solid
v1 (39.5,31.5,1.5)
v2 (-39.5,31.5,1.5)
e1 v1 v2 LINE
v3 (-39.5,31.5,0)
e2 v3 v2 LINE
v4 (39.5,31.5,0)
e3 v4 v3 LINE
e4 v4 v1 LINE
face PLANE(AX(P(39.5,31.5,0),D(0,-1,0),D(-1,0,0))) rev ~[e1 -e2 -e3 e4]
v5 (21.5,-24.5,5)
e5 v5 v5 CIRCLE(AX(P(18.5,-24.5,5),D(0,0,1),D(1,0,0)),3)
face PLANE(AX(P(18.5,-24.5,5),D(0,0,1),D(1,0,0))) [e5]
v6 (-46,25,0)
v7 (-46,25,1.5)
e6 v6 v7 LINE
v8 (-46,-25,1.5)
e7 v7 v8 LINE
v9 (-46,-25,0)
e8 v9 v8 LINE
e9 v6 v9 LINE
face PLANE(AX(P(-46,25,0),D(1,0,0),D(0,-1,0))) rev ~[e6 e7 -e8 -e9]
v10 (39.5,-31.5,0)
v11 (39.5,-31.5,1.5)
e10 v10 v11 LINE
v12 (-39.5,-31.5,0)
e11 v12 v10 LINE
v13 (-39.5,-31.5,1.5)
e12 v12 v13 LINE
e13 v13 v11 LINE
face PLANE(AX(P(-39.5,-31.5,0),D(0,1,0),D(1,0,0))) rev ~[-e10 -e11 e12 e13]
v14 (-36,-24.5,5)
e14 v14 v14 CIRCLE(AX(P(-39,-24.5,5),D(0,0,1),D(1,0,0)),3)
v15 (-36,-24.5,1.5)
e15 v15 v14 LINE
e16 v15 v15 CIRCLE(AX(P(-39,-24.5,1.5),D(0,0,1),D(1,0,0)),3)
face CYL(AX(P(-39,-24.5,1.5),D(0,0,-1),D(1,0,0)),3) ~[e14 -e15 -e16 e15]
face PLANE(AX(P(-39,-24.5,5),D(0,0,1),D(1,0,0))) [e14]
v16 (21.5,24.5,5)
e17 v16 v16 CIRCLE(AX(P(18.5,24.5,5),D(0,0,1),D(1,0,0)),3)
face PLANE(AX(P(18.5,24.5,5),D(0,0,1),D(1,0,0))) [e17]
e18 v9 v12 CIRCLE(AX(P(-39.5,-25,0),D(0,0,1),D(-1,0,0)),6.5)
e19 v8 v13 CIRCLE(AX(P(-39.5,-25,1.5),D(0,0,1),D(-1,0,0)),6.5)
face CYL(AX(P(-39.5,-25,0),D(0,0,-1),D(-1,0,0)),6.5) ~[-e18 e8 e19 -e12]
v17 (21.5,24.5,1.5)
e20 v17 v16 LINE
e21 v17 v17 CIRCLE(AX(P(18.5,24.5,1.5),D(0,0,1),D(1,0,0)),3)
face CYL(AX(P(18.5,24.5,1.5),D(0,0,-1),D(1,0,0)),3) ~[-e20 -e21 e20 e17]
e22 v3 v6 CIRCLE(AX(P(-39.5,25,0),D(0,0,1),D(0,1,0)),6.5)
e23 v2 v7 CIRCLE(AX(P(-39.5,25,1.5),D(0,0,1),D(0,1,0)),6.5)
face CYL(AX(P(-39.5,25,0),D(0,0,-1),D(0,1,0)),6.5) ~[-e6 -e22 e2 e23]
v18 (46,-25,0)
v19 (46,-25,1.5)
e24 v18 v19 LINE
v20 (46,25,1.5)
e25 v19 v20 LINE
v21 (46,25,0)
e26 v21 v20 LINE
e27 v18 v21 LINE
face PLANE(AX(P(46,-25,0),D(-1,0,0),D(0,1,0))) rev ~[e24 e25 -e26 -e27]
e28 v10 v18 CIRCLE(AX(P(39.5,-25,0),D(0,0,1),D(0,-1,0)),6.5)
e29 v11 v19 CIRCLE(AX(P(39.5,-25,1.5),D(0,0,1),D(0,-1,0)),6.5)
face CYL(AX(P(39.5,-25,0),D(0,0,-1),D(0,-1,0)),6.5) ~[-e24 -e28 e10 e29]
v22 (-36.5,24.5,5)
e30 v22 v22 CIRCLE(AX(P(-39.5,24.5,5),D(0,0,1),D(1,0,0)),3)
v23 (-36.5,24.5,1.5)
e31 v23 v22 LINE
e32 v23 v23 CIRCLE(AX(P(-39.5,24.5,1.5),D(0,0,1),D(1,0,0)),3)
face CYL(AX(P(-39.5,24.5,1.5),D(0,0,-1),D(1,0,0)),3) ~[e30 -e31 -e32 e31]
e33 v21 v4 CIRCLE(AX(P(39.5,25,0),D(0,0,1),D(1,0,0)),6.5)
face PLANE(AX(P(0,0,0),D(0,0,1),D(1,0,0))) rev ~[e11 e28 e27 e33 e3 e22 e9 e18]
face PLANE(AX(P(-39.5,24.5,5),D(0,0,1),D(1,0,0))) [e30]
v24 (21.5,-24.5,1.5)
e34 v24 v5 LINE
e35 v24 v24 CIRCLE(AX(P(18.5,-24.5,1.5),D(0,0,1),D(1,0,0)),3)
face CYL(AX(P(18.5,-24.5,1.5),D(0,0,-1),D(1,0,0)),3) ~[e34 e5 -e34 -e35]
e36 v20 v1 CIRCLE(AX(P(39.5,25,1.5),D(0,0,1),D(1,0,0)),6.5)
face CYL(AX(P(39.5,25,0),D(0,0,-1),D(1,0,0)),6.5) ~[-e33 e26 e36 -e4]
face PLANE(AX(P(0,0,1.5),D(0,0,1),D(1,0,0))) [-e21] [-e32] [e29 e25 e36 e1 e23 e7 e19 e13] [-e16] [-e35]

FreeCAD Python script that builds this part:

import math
import FreeCAD as App
import Part
import Sketcher

doc = App.newDocument("Part")
body = doc.addObject("PartDesign::Body", "Body")

# Sketch on XY plane
sketch1 = body.newObject("Sketcher::SketchObject", "Sketch")
sketch1.AttachmentSupport = (doc.getObject("XY_Plane"), [""])
sketch1.MapMode = "FlatFace"
sketch1.addGeometry([
    Part.LineSegment(App.Vector(40, 32, 0), App.Vector(-40, 32, 0)),  # 0
    Part.ArcOfCircle(Part.Circle(App.Vector(-40, 25, 0), App.Vector(0, 0, 1), 6), math.radians(90), math.radians(180)),  # 1
    Part.LineSegment(App.Vector(-46, 25, 0), App.Vector(-46, -25, 0)),  # 2
    Part.ArcOfCircle(Part.Circle(App.Vector(-40, -25, 0), App.Vector(0, 0, 1), 6), math.radians(180), math.radians(270)),  # 3
    Part.LineSegment(App.Vector(-40, -32, 0), App.Vector(40, -32, 0)),  # 4
    Part.ArcOfCircle(Part.Circle(App.Vector(40, -25, 0), App.Vector(0, 0, 1), 6), math.radians(-90), math.radians(0)),  # 5
    Part.LineSegment(App.Vector(46, -25, 0), App.Vector(46, 25, 0)),  # 6
    Part.ArcOfCircle(Part.Circle(App.Vector(40, 25, 0), App.Vector(0, 0, 1), 6), math.radians(0), math.radians(90)),  # 7
], False)
sketch1.addConstraint([
    Sketcher.Constraint("Tangent", 0, 2, 1, 1),
    Sketcher.Constraint("Tangent", 1, 2, 2, 1),
    Sketcher.Constraint("Tangent", 2, 2, 3, 1),
    Sketcher.Constraint("Tangent", 3, 2, 4, 1),
    Sketcher.Constraint("Tangent", 4, 2, 5, 1),
    Sketcher.Constraint("Tangent", 5, 2, 6, 1),
    Sketcher.Constraint("Tangent", 6, 2, 7, 1),
    Sketcher.Constraint("Tangent", 7, 2, 0, 1),
    Sketcher.Constraint("Horizontal", 0),
    Sketcher.Constraint("Vertical", 2),
    Sketcher.Constraint("Horizontal", 4),
    Sketcher.Constraint("Vertical", 6),
    Sketcher.Constraint("Equal", 1, 3),
    Sketcher.Constraint("Equal", 3, 5),
    Sketcher.Constraint("Equal", 5, 7),
    Sketcher.Constraint("Symmetric", 1, 3, 5, 3, -1, 1),
    Sketcher.Constraint("Radius", 1, 6.5),
    Sketcher.Constraint("DistanceX", 0, 2, 0, 1, 79.0),
    Sketcher.Constraint("DistanceY", 2, 2, 2, 1, 50.0),
])
pad1 = body.newObject("PartDesign::Pad", "Pad")
pad1.Profile = sketch1
pad1.Length = 1.5

# Sketch on XY plane
sketch2 = body.newObject("Sketcher::SketchObject", "Sketch001")
sketch2.AttachmentSupport = (doc.getObject("XY_Plane"), [""])
sketch2.MapMode = "FlatFace"
sketch2.AttachmentOffset = App.Placement(App.Vector(0, 0, 1.5), App.Rotation())
sketch2.addGeometry([
    Part.Circle(App.Vector(-39.5, 24.5, 0), App.Vector(0, 0, 1), 3),
    Part.Circle(App.Vector(18.5, 24.5, 0), App.Vector(0, 0, 1), 3),
    Part.Circle(App.Vector(-39, -24.5, 0), App.Vector(0, 0, 1), 3),
    Part.Circle(App.Vector(18.5, -24.5, 0), App.Vector(0, 0, 1), 3),
], False)
sketch2.addConstraint([
    Sketcher.Constraint("Equal", 0, 1),
    Sketcher.Constraint("Equal", 1, 2),
    Sketcher.Constraint("Equal", 2, 3),
    Sketcher.Constraint("Symmetric", 1, 3, 3, 3, -1),
    Sketcher.Constraint("Horizontal", 0, 3, 1, 3),
    Sketcher.Constraint("Horizontal", 2, 3, 3, 3),
    Sketcher.Constraint("Diameter", 0, 6.0),
    Sketcher.Constraint("DistanceX", 2, 3, -1, 1, 39.0),
    Sketcher.Constraint("DistanceX", 0, 3, 1, 3, 58.0),
    Sketcher.Constraint("DistanceY", 2, 3, 0, 3, 49.0),
    Sketcher.Constraint("DistanceX", 0, 3, -1, 1, 39.5),
])
pad2 = body.newObject("PartDesign::Pad", "Pad001")
pad2.Profile = sketch2
pad2.Length = 3.5

doc.recompute()
